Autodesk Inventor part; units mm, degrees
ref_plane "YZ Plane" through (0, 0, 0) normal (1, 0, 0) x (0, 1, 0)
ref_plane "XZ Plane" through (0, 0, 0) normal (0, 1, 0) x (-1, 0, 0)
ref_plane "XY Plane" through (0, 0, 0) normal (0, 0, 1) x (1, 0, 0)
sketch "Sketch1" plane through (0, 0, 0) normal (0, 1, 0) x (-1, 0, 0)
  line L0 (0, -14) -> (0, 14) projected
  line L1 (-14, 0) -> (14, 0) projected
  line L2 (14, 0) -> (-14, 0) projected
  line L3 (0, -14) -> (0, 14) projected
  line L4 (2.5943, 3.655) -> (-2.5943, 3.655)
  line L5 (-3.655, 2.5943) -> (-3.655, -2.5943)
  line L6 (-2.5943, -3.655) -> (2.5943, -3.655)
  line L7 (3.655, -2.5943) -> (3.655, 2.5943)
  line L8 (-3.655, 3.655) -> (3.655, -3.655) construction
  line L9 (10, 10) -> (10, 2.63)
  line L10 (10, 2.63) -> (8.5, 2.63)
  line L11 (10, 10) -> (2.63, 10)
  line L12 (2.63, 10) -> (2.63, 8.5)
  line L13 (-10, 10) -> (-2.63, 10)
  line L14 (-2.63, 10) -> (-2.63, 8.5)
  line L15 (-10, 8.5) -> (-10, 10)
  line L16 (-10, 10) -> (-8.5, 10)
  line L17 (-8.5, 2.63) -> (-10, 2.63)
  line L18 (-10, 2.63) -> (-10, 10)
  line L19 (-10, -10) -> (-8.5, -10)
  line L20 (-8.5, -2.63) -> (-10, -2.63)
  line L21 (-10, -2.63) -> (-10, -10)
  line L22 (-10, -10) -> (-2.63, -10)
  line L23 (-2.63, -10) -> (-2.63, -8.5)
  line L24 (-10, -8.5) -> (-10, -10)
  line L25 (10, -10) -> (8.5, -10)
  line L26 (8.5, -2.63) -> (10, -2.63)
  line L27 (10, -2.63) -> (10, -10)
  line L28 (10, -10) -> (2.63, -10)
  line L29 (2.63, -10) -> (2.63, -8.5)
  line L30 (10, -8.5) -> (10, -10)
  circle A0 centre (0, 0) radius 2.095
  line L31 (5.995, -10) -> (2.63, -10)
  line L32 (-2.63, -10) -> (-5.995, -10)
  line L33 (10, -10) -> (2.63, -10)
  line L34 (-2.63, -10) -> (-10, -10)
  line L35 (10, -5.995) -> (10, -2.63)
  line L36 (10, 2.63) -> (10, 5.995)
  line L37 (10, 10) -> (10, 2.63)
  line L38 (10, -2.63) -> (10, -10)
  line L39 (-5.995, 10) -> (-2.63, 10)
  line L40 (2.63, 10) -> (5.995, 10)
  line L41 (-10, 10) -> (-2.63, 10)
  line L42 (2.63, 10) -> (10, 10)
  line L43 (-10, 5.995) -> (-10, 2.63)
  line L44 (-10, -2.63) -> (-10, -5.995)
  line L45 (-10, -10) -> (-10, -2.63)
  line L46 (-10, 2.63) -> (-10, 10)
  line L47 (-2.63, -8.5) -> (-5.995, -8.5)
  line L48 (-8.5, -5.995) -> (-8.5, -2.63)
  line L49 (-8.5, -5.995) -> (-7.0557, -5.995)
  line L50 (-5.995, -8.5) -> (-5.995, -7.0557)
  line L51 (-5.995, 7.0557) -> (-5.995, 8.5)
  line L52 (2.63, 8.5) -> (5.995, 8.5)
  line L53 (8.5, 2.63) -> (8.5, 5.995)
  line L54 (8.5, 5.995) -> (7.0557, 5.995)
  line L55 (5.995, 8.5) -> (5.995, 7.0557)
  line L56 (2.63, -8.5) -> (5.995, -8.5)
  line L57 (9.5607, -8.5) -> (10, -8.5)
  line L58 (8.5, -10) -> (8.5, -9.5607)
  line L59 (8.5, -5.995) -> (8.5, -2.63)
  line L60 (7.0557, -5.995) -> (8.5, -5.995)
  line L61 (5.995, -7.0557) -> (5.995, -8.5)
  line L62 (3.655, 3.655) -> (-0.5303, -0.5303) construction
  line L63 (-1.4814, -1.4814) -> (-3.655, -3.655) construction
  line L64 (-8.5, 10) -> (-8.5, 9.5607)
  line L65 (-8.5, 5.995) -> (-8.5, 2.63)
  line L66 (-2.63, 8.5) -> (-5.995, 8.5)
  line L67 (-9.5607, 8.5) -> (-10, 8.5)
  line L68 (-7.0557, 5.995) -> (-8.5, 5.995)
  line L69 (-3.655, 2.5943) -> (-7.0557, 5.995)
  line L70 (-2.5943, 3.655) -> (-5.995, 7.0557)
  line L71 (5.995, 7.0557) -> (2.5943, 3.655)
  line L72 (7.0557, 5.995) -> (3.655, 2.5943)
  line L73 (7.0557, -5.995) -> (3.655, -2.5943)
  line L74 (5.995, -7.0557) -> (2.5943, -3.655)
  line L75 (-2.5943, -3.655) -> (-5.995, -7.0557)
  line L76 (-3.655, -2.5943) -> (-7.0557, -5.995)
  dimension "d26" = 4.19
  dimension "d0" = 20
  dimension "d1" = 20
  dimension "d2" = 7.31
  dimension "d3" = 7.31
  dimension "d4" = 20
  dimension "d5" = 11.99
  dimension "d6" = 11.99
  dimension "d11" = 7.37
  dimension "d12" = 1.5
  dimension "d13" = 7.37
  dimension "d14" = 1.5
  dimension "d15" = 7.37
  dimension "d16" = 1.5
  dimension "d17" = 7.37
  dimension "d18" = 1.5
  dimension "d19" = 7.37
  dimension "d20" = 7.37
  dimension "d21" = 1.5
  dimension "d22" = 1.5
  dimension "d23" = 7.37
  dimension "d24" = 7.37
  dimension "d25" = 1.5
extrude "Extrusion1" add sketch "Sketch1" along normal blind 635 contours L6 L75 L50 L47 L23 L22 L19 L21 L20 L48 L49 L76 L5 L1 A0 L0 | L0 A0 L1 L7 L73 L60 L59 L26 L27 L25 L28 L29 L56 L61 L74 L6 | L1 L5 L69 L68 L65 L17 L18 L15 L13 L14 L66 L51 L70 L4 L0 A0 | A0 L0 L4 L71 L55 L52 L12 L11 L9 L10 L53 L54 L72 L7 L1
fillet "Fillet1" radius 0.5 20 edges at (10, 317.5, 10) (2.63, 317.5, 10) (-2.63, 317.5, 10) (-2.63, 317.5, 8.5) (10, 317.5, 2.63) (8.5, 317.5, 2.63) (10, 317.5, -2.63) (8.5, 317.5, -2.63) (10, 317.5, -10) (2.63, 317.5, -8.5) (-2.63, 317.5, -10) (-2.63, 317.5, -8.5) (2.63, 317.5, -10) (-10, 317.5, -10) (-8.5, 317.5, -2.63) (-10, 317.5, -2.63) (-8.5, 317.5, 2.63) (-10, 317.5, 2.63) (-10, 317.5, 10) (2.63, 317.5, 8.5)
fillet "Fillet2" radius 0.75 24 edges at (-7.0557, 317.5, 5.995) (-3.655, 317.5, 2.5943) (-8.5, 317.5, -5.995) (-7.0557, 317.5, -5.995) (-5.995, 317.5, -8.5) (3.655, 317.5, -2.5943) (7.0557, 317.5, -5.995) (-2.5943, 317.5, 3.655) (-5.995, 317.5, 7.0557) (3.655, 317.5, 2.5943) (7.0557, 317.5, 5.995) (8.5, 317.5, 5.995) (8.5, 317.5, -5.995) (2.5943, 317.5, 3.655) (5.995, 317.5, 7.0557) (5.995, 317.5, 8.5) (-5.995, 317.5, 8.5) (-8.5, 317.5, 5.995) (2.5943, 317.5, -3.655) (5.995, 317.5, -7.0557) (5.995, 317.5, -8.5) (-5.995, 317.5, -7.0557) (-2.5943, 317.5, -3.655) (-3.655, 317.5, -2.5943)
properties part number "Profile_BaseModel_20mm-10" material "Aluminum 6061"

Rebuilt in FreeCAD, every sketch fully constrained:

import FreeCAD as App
import Part
import Sketcher
from FreeCAD import Vector
Q = App.Units.Quantity


def edges_at(feature, points):
    """Names of the edges that pass closest to the given points."""
    edges = feature.Shape.Edges
    near = lambda p: min(range(len(edges)), key=lambda i: edges[i].distToShape(Part.Vertex(*p))[0])
    return sorted({f"Edge{near(p) + 1}" for p in points})

doc = App.newDocument("Part")
body = doc.addObject("PartDesign::Body", "Body")

# Sketch on XZ plane
sketch1 = body.newObject("Sketcher::SketchObject", "Sketch")
sketch1.AttachmentSupport = (doc.getObject("XZ_Plane"), [""])
sketch1.MapMode = "FlatFace"
sketch1.addGeometry([
    Part.LineSegment(Vector(2.6, -3.7, 0), Vector(-2.6, -3.7, 0)),  # 0
    Part.LineSegment(Vector(-2.6, -3.7, 0), Vector(-6, -7.1, 0)),  # 1
    Part.LineSegment(Vector(-6, -7.1, 0), Vector(-6, -8.5, 0)),  # 2
    Part.LineSegment(Vector(-6, -8.5, 0), Vector(-2.6, -8.5, 0)),  # 3
    Part.LineSegment(Vector(-2.6, -8.5, 0), Vector(-2.6, -10, 0)),  # 4
    Part.LineSegment(Vector(-2.6, -10, 0), Vector(-10, -10, 0)),  # 5
    Part.LineSegment(Vector(-10, -10, 0), Vector(-10, -2.6, 0)),  # 6
    Part.LineSegment(Vector(-10, -2.6, 0), Vector(-8.5, -2.6, 0)),  # 7
    Part.LineSegment(Vector(-8.5, -2.6, 0), Vector(-8.5, -6, 0)),  # 8
    Part.LineSegment(Vector(-8.5, -6, 0), Vector(-7.1, -6, 0)),  # 9
    Part.LineSegment(Vector(-7.1, -6, 0), Vector(-3.7, -2.6, 0)),  # 10
    Part.LineSegment(Vector(-3.7, -2.6, 0), Vector(-3.7, 2.6, 0)),  # 11
    Part.LineSegment(Vector(-3.7, 2.6, 0), Vector(-7.1, 6, 0)),  # 12
    Part.LineSegment(Vector(-7.1, 6, 0), Vector(-8.5, 6, 0)),  # 13
    Part.LineSegment(Vector(-8.5, 6, 0), Vector(-8.5, 2.6, 0)),  # 14
    Part.LineSegment(Vector(-8.5, 2.6, 0), Vector(-10, 2.6, 0)),  # 15
    Part.LineSegment(Vector(-10, 2.6, 0), Vector(-10, 10, 0)),  # 16
    Part.LineSegment(Vector(-10, 10, 0), Vector(-2.6, 10, 0)),  # 17
    Part.LineSegment(Vector(-2.6, 10, 0), Vector(-2.6, 8.5, 0)),  # 18
    Part.LineSegment(Vector(-2.6, 8.5, 0), Vector(-6, 8.5, 0)),  # 19
    Part.LineSegment(Vector(-6, 8.5, 0), Vector(-6, 7.1, 0)),  # 20
    Part.LineSegment(Vector(-6, 7.1, 0), Vector(-2.6, 3.7, 0)),  # 21
    Part.LineSegment(Vector(-2.6, 3.7, 0), Vector(2.6, 3.7, 0)),  # 22
    Part.LineSegment(Vector(2.6, 3.7, 0), Vector(6, 7.1, 0)),  # 23
    Part.LineSegment(Vector(6, 7.1, 0), Vector(6, 8.5, 0)),  # 24
    Part.LineSegment(Vector(6, 8.5, 0), Vector(2.6, 8.5, 0)),  # 25
    Part.LineSegment(Vector(2.6, 8.5, 0), Vector(2.6, 10, 0)),  # 26
    Part.LineSegment(Vector(2.6, 10, 0), Vector(10, 10, 0)),  # 27
    Part.LineSegment(Vector(10, 10, 0), Vector(10, 2.6, 0)),  # 28
    Part.LineSegment(Vector(10, 2.6, 0), Vector(8.5, 2.6, 0)),  # 29
    Part.LineSegment(Vector(8.5, 2.6, 0), Vector(8.5, 6, 0)),  # 30
    Part.LineSegment(Vector(8.5, 6, 0), Vector(7.1, 6, 0)),  # 31
    Part.LineSegment(Vector(7.1, 6, 0), Vector(3.7, 2.6, 0)),  # 32
    Part.LineSegment(Vector(3.7, 2.6, 0), Vector(3.7, -2.6, 0)),  # 33
    Part.LineSegment(Vector(3.7, -2.6, 0), Vector(7.1, -6, 0)),  # 34
    Part.LineSegment(Vector(7.1, -6, 0), Vector(8.5, -6, 0)),  # 35
    Part.LineSegment(Vector(8.5, -6, 0), Vector(8.5, -2.6, 0)),  # 36
    Part.LineSegment(Vector(8.5, -2.6, 0), Vector(10, -2.6, 0)),  # 37
    Part.LineSegment(Vector(10, -2.6, 0), Vector(10, -10, 0)),  # 38
    Part.LineSegment(Vector(10, -10, 0), Vector(2.6, -10, 0)),  # 39
    Part.LineSegment(Vector(2.6, -10, 0), Vector(2.6, -8.5, 0)),  # 40
    Part.LineSegment(Vector(2.6, -8.5, 0), Vector(6, -8.5, 0)),  # 41
    Part.LineSegment(Vector(6, -8.5, 0), Vector(6, -7.1, 0)),  # 42
    Part.LineSegment(Vector(6, -7.1, 0), Vector(2.6, -3.7, 0)),  # 43
    Part.Circle(Vector(0, 0, 0), Vector(0, 0, 1), 2.1),  # 44
], False)
sketch1.addConstraint([
    Sketcher.Constraint("Coincident", 0, 2, 1, 1),
    Sketcher.Constraint("Coincident", 1, 2, 2, 1),
    Sketcher.Constraint("Coincident", 2, 2, 3, 1),
    Sketcher.Constraint("Coincident", 3, 2, 4, 1),
    Sketcher.Constraint("Coincident", 4, 2, 5, 1),
    Sketcher.Constraint("Coincident", 5, 2, 6, 1),
    Sketcher.Constraint("Coincident", 6, 2, 7, 1),
    Sketcher.Constraint("Coincident", 7, 2, 8, 1),
    Sketcher.Constraint("Coincident", 8, 2, 9, 1),
    Sketcher.Constraint("Coincident", 9, 2, 10, 1),
    Sketcher.Constraint("Coincident", 10, 2, 11, 1),
    Sketcher.Constraint("Coincident", 11, 2, 12, 1),
    Sketcher.Constraint("Coincident", 12, 2, 13, 1),
    Sketcher.Constraint("Coincident", 13, 2, 14, 1),
    Sketcher.Constraint("Coincident", 14, 2, 15, 1),
    Sketcher.Constraint("Coincident", 15, 2, 16, 1),
    Sketcher.Constraint("Coincident", 16, 2, 17, 1),
    Sketcher.Constraint("Coincident", 17, 2, 18, 1),
    Sketcher.Constraint("Coincident", 18, 2, 19, 1),
    Sketcher.Constraint("Coincident", 19, 2, 20, 1),
    Sketcher.Constraint("Coincident", 20, 2, 21, 1),
    Sketcher.Constraint("Coincident", 21, 2, 22, 1),
    Sketcher.Constraint("Coincident", 22, 2, 23, 1),
    Sketcher.Constraint("Coincident", 23, 2, 24, 1),
    Sketcher.Constraint("Coincident", 24, 2, 25, 1),
    Sketcher.Constraint("Coincident", 25, 2, 26, 1),
    Sketcher.Constraint("Coincident", 26, 2, 27, 1),
    Sketcher.Constraint("Coincident", 27, 2, 28, 1),
    Sketcher.Constraint("Coincident", 28, 2, 29, 1),
    Sketcher.Constraint("Coincident", 29, 2, 30, 1),
    Sketcher.Constraint("Coincident", 30, 2, 31, 1),
    Sketcher.Constraint("Coincident", 31, 2, 32, 1),
    Sketcher.Constraint("Coincident", 32, 2, 33, 1),
    Sketcher.Constraint("Coincident", 33, 2, 34, 1),
    Sketcher.Constraint("Coincident", 34, 2, 35, 1),
    Sketcher.Constraint("Coincident", 35, 2, 36, 1),
    Sketcher.Constraint("Coincident", 36, 2, 37, 1),
    Sketcher.Constraint("Coincident", 37, 2, 38, 1),
    Sketcher.Constraint("Coincident", 38, 2, 39, 1),
    Sketcher.Constraint("Coincident", 39, 2, 40, 1),
    Sketcher.Constraint("Coincident", 40, 2, 41, 1),
    Sketcher.Constraint("Coincident", 41, 2, 42, 1),
    Sketcher.Constraint("Coincident", 42, 2, 43, 1),
    Sketcher.Constraint("Coincident", 43, 2, 0, 1),
    Sketcher.Constraint("Horizontal", 0),
    Sketcher.Constraint("Vertical", 2),
    Sketcher.Constraint("Horizontal", 3),
    Sketcher.Constraint("Vertical", 4),
    Sketcher.Constraint("Horizontal", 5),
    Sketcher.Constraint("Vertical", 6),
    Sketcher.Constraint("Horizontal", 7),
    Sketcher.Constraint("Vertical", 8),
    Sketcher.Constraint("Horizontal", 9),
    Sketcher.Constraint("Vertical", 11),
    Sketcher.Constraint("Horizontal", 13),
    Sketcher.Constraint("Vertical", 14),
    Sketcher.Constraint("Horizontal", 15),
    Sketcher.Constraint("Vertical", 16),
    Sketcher.Constraint("Horizontal", 17),
    Sketcher.Constraint("Vertical", 18),
    Sketcher.Constraint("Horizontal", 19),
    Sketcher.Constraint("Vertical", 20),
    Sketcher.Constraint("Horizontal", 22),
    Sketcher.Constraint("Vertical", 24),
    Sketcher.Constraint("Horizontal", 25),
    Sketcher.Constraint("Vertical", 26),
    Sketcher.Constraint("Horizontal", 27),
    Sketcher.Constraint("Vertical", 28),
    Sketcher.Constraint("Horizontal", 29),
    Sketcher.Constraint("Vertical", 30),
    Sketcher.Constraint("Horizontal", 31),
    Sketcher.Constraint("Vertical", 33),
    Sketcher.Constraint("Horizontal", 35),
    Sketcher.Constraint("Vertical", 36),
    Sketcher.Constraint("Horizontal", 37),
    Sketcher.Constraint("Vertical", 38),
    Sketcher.Constraint("Horizontal", 39),
    Sketcher.Constraint("Vertical", 40),
    Sketcher.Constraint("Horizontal", 41),
    Sketcher.Constraint("Vertical", 42),
    Sketcher.Constraint("Coincident", 44, 3, -1, 1),
    Sketcher.Constraint("Symmetric", 0, 2, 22, 2, -1, 1),
    Sketcher.Constraint("Symmetric", 1, 2, 23, 2, -1, 1),
    Sketcher.Constraint("Symmetric", 3, 2, 25, 2, -1, 1),
    Sketcher.Constraint("Symmetric", 5, 2, 27, 2, -1, 1),
    Sketcher.Constraint("Symmetric", 7, 2, 29, 2, -1, 1),
    Sketcher.Constraint("Symmetric", 9, 2, 31, 2, -1, 1),
    Sketcher.Constraint("Symmetric", 10, 2, 32, 2, -1, 1),
    Sketcher.Constraint("Symmetric", 12, 2, 34, 2, -1, 1),
    Sketcher.Constraint("Symmetric", 14, 2, 36, 2, -1, 1),
    Sketcher.Constraint("Symmetric", 16, 2, 38, 2, -1, 1),
    Sketcher.Constraint("Symmetric", 18, 2, 40, 2, -1, 1),
    Sketcher.Constraint("Symmetric", 20, 2, 42, 2, -1, 1),
    Sketcher.Constraint("Symmetric", 20, 2, 23, 2, -2),
    Sketcher.Constraint("Symmetric", 18, 2, 25, 2, -2),
    Sketcher.Constraint("Symmetric", 16, 2, 27, 2, -2),
    Sketcher.Constraint("Symmetric", 14, 2, 29, 2, -2),
    Sketcher.Constraint("Symmetric", 12, 2, 31, 2, -2),
    Sketcher.Constraint("Parallel", 1, 10),
    Sketcher.Constraint("Perpendicular", 10, 12),
    Sketcher.Constraint("Parallel", 12, 21),
    Sketcher.Constraint("Perpendicular", 32, 34),
    Sketcher.Constraint("Parallel", 34, 43),
    Sketcher.Constraint("Horizontal", 11, 2, 32, 2),
    Sketcher.Constraint("Equal", 35, 2),
    Sketcher.Constraint("Equal", 37, 4),
    Sketcher.Constraint("Equal", 39, 6),
    Sketcher.Constraint("Equal", 41, 8),
    Sketcher.Constraint("Equal", 22, 11),
    Sketcher.Constraint("Equal", 1, 10),
    Sketcher.Constraint("Diameter", 44, Q("4.19 mm")),
    Sketcher.Constraint("DistanceX", 7, 1, 7, 2, Q("1.5 mm")),
    Sketcher.Constraint("DistanceX", 5, 2, 5, 1, Q("7.37 mm")),
    Sketcher.Constraint("DistanceY", 4, 2, -1, 1, Q("10 mm")),
    Sketcher.Constraint("DistanceX", 3, 1, 3, 2, Q("3.365 mm")),
    Sketcher.Constraint("DistanceX", 1, 2, 10, 2, Q("2.34 mm")),
    Sketcher.Constraint("DistanceX", 0, 2, 0, 1, Q("5.1886 mm")),
])
pad1 = body.newObject("PartDesign::Pad", "Pad")
pad1.Profile = sketch1
pad1.Length = 635
pad1.Reversed = True
doc.recompute()

fillet = body.newObject("PartDesign::Fillet", "Fillet")
fillet.Base = (pad1, edges_at(pad1, [
    (10, 317.5, 10),
    (2.63, 317.5, 10),
    (-2.63, 317.5, 10),
    (-2.63, 317.5, 8.5),
    (10, 317.5, 2.63),
    (8.5, 317.5, 2.63),
    (10, 317.5, -2.63),
    (8.5, 317.5, -2.63),
    (10, 317.5, -10),
    (2.63, 317.5, -8.5),
    (-2.63, 317.5, -10),
    (-2.63, 317.5, -8.5),
    (2.63, 317.5, -10),
    (-10, 317.5, -10),
    (-8.5, 317.5, -2.63),
    (-10, 317.5, -2.63),
    (-8.5, 317.5, 2.63),
    (-10, 317.5, 2.63),
    (-10, 317.5, 10),
    (2.63, 317.5, 8.5),
]))
fillet.Radius = 0.5
doc.recompute()

fillet2 = body.newObject("PartDesign::Fillet", "Fillet001")
fillet2.Base = (fillet, edges_at(fillet, [
    (-7.056, 317.5, 5.995),
    (-3.655, 317.5, 2.594),
    (-8.5, 317.5, -5.995),
    (-7.056, 317.5, -5.995),
    (-5.995, 317.5, -8.5),
    (3.655, 317.5, -2.594),
    (7.056, 317.5, -5.995),
    (-2.594, 317.5, 3.655),
    (-5.995, 317.5, 7.056),
    (3.655, 317.5, 2.594),
    (7.056, 317.5, 5.995),
    (8.5, 317.5, 5.995),
    (8.5, 317.5, -5.995),
    (2.594, 317.5, 3.655),
    (5.995, 317.5, 7.056),
    (5.995, 317.5, 8.5),
    (-5.995, 317.5, 8.5),
    (-8.5, 317.5, 5.995),
    (2.594, 317.5, -3.655),
    (5.995, 317.5, -7.056),
    (5.995, 317.5, -8.5),
    (-5.995, 317.5, -7.056),
    (-2.594, 317.5, -3.655),
    (-3.655, 317.5, -2.594),
]))
fillet2.Radius = 0.75

doc.recompute()
